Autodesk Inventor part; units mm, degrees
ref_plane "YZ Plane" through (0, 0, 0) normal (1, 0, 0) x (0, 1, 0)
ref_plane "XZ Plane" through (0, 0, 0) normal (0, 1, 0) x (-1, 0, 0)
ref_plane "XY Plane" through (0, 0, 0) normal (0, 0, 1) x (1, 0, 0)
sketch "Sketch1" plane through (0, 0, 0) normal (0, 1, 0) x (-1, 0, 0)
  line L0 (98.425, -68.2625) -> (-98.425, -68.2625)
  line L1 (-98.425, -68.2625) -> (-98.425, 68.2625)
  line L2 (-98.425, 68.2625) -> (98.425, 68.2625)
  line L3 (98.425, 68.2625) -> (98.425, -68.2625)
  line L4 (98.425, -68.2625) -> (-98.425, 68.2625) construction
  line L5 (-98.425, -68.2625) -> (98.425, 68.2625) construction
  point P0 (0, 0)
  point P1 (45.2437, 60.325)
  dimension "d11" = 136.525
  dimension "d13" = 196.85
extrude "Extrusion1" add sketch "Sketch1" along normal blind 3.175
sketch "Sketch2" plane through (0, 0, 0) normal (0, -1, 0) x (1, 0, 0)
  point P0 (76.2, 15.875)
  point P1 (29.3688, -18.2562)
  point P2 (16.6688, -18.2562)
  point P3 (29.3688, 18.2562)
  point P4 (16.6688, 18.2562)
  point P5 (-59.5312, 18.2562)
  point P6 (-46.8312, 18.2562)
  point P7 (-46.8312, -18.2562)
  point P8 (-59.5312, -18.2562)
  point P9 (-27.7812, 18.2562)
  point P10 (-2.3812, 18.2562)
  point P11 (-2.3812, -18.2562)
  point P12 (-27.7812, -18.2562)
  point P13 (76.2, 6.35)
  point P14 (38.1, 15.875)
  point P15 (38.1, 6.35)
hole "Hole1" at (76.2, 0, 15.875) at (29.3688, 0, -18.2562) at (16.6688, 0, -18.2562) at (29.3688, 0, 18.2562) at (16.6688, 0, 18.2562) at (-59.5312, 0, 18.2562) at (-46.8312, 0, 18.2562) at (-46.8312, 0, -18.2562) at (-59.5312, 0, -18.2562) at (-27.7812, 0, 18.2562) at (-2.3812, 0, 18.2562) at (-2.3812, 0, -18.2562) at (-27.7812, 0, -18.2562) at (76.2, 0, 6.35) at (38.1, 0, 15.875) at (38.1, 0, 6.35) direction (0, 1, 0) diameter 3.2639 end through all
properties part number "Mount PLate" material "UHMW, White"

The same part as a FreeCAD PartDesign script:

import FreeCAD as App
import Part
import Sketcher

V = App.Vector
Q = App.Units.Quantity

doc = App.newDocument("Part")
body = doc.addObject("PartDesign::Body", "Body")

sketch1 = body.newObject("Sketcher::SketchObject", "Sketch")
sketch1.AttachmentSupport = (doc.getObject("XZ_Plane"), [""])
sketch1.MapMode = "FlatFace"
sketch1.addGeometry([
    Part.LineSegment(V(98.425, -68.2625, 0), V(-98.425, -68.2625, 0)),
    Part.LineSegment(V(-98.425, -68.2625, 0), V(-98.425, 68.2625, 0)),
    Part.LineSegment(V(-98.425, 68.2625, 0), V(98.425, 68.2625, 0)),
    Part.LineSegment(V(98.425, 68.2625, 0), V(98.425, -68.2625, 0)),
], False)
sketch1.addConstraint([
    Sketcher.Constraint("Coincident", 0, 2, 1, 1),
    Sketcher.Constraint("Coincident", 1, 2, 2, 1),
    Sketcher.Constraint("Coincident", 2, 2, 3, 1),
    Sketcher.Constraint("Coincident", 3, 2, 0, 1),
    Sketcher.Constraint("Horizontal", 0),
    Sketcher.Constraint("Vertical", 1),
    Sketcher.Constraint("Horizontal", 2),
    Sketcher.Constraint("Vertical", 3),
    Sketcher.Constraint("Symmetric", 0, 2, 2, 2, -1, 1),
    Sketcher.Constraint("DistanceX", 0, 2, 0, 1, Q("7.75 in")),
    Sketcher.Constraint("DistanceY", 1, 1, 1, 2, Q("5.375 in")),
])
pad1 = body.newObject("PartDesign::Pad", "Pad")
pad1.Profile = sketch1
pad1.Length = Q("0.125 in")
pad1.Reversed = True

sketch2 = body.newObject("Sketcher::SketchObject", "Sketch001")
sketch2.AttachmentSupport = (doc.getObject("XZ_Plane"), [""])
sketch2.MapMode = "FlatFace"
sketch2.addGeometry([
    Part.Circle(V(76.2, 15.875, 0), V(0, 0, 1), 1.63195),
    Part.Circle(V(29.3688, -18.2562, 0), V(0, 0, 1), 1.63195),
    Part.Circle(V(16.6688, -18.2562, 0), V(0, 0, 1), 1.63195),
    Part.Circle(V(29.3688, 18.2562, 0), V(0, 0, 1), 1.63195),
    Part.Circle(V(16.6688, 18.2562, 0), V(0, 0, 1), 1.63195),
    Part.Circle(V(-59.5312, 18.2562, 0), V(0, 0, 1), 1.63195),
    Part.Circle(V(-46.8312, 18.2562, 0), V(0, 0, 1), 1.63195),
    Part.Circle(V(-46.8312, -18.2562, 0), V(0, 0, 1), 1.63195),
    Part.Circle(V(-59.5312, -18.2562, 0), V(0, 0, 1), 1.63195),
    Part.Circle(V(-27.7812, 18.2562, 0), V(0, 0, 1), 1.63195),
    Part.Circle(V(-2.3812, 18.2562, 0), V(0, 0, 1), 1.63195),
    Part.Circle(V(-2.3812, -18.2562, 0), V(0, 0, 1), 1.63195),
    Part.Circle(V(-27.7812, -18.2562, 0), V(0, 0, 1), 1.63195),
    Part.Circle(V(76.2, 6.35, 0), V(0, 0, 1), 1.63195),
    Part.Circle(V(38.1, 15.875, 0), V(0, 0, 1), 1.63195),
    Part.Circle(V(38.1, 6.35, 0), V(0, 0, 1), 1.63195),
], False)
sketch2.addConstraint([
    Sketcher.Constraint("Equal", 0, 1),
    Sketcher.Constraint("Equal", 1, 2),
    Sketcher.Constraint("Equal", 2, 3),
    Sketcher.Constraint("Equal", 3, 4),
    Sketcher.Constraint("Equal", 4, 5),
    Sketcher.Constraint("Equal", 5, 6),
    Sketcher.Constraint("Equal", 6, 7),
    Sketcher.Constraint("Equal", 7, 8),
    Sketcher.Constraint("Equal", 8, 9),
    Sketcher.Constraint("Equal", 9, 10),
    Sketcher.Constraint("Equal", 10, 11),
    Sketcher.Constraint("Equal", 11, 12),
    Sketcher.Constraint("Equal", 12, 13),
    Sketcher.Constraint("Equal", 13, 14),
    Sketcher.Constraint("Equal", 14, 15),
    Sketcher.Constraint("Symmetric", 1, 3, 3, 3, -1),
    Sketcher.Constraint("Symmetric", 2, 3, 4, 3, -1),
    Sketcher.Constraint("Symmetric", 6, 3, 7, 3, -1),
    Sketcher.Constraint("Symmetric", 5, 3, 8, 3, -1),
    Sketcher.Constraint("Symmetric", 10, 3, 11, 3, -1),
    Sketcher.Constraint("Symmetric", 9, 3, 12, 3, -1),
    Sketcher.Constraint("Horizontal", 1, 3, 2, 3),
    Sketcher.Constraint("Horizontal", 4, 3, 5, 3),
    Sketcher.Constraint("Horizontal", 5, 3, 6, 3),
    Sketcher.Constraint("Horizontal", 6, 3, 9, 3),
    Sketcher.Constraint("Horizontal", 9, 3, 10, 3),
    Sketcher.Constraint("Horizontal", 0, 3, 14, 3),
    Sketcher.Constraint("Horizontal", 13, 3, 15, 3),
    Sketcher.Constraint("Vertical", 0, 3, 13, 3),
    Sketcher.Constraint("Vertical", 14, 3, 15, 3),
    Sketcher.Constraint("DistanceX", -1, 1, 0, 3, Q("3 in")),
    Sketcher.Constraint("DistanceX", 5, 3, 4, 3, Q("3 in")),
    Sketcher.Constraint("DistanceX", 6, 3, 3, 3, Q("3 in")),
    Sketcher.Constraint("DistanceX", 9, 3, 10, 3, Q("1 in")),
    Sketcher.Constraint("Diameter", 0, Q("0.1285 in")),
    Sketcher.Constraint("DistanceX", -1, 1, 14, 3, Q("1.5 in")),
    Sketcher.Constraint("DistanceX", 2, 3, 1, 3, Q("0.5 in")),
    Sketcher.Constraint("DistanceY", -1, 1, 13, 3, Q("0.25 in")),
    Sketcher.Constraint("DistanceX", 6, 3, 9, 3, Q("0.75 in")),
    Sketcher.Constraint("DistanceY", -1, 1, 0, 3, Q("0.625 in")),
    Sketcher.Constraint("DistanceX", -1, 1, 1, 3, Q("1.156252 in")),
    Sketcher.Constraint("DistanceY", 1, 3, -1, 1, Q("0.718748 in")),
])
doc.recompute()
hole = body.newObject("PartDesign::Hole", "Hole")
hole.Profile = sketch2
hole.ThreadType = "None"
hole.Diameter = Q("0.1285 in")
hole.DepthType = "ThroughAll"

doc.recompute()
